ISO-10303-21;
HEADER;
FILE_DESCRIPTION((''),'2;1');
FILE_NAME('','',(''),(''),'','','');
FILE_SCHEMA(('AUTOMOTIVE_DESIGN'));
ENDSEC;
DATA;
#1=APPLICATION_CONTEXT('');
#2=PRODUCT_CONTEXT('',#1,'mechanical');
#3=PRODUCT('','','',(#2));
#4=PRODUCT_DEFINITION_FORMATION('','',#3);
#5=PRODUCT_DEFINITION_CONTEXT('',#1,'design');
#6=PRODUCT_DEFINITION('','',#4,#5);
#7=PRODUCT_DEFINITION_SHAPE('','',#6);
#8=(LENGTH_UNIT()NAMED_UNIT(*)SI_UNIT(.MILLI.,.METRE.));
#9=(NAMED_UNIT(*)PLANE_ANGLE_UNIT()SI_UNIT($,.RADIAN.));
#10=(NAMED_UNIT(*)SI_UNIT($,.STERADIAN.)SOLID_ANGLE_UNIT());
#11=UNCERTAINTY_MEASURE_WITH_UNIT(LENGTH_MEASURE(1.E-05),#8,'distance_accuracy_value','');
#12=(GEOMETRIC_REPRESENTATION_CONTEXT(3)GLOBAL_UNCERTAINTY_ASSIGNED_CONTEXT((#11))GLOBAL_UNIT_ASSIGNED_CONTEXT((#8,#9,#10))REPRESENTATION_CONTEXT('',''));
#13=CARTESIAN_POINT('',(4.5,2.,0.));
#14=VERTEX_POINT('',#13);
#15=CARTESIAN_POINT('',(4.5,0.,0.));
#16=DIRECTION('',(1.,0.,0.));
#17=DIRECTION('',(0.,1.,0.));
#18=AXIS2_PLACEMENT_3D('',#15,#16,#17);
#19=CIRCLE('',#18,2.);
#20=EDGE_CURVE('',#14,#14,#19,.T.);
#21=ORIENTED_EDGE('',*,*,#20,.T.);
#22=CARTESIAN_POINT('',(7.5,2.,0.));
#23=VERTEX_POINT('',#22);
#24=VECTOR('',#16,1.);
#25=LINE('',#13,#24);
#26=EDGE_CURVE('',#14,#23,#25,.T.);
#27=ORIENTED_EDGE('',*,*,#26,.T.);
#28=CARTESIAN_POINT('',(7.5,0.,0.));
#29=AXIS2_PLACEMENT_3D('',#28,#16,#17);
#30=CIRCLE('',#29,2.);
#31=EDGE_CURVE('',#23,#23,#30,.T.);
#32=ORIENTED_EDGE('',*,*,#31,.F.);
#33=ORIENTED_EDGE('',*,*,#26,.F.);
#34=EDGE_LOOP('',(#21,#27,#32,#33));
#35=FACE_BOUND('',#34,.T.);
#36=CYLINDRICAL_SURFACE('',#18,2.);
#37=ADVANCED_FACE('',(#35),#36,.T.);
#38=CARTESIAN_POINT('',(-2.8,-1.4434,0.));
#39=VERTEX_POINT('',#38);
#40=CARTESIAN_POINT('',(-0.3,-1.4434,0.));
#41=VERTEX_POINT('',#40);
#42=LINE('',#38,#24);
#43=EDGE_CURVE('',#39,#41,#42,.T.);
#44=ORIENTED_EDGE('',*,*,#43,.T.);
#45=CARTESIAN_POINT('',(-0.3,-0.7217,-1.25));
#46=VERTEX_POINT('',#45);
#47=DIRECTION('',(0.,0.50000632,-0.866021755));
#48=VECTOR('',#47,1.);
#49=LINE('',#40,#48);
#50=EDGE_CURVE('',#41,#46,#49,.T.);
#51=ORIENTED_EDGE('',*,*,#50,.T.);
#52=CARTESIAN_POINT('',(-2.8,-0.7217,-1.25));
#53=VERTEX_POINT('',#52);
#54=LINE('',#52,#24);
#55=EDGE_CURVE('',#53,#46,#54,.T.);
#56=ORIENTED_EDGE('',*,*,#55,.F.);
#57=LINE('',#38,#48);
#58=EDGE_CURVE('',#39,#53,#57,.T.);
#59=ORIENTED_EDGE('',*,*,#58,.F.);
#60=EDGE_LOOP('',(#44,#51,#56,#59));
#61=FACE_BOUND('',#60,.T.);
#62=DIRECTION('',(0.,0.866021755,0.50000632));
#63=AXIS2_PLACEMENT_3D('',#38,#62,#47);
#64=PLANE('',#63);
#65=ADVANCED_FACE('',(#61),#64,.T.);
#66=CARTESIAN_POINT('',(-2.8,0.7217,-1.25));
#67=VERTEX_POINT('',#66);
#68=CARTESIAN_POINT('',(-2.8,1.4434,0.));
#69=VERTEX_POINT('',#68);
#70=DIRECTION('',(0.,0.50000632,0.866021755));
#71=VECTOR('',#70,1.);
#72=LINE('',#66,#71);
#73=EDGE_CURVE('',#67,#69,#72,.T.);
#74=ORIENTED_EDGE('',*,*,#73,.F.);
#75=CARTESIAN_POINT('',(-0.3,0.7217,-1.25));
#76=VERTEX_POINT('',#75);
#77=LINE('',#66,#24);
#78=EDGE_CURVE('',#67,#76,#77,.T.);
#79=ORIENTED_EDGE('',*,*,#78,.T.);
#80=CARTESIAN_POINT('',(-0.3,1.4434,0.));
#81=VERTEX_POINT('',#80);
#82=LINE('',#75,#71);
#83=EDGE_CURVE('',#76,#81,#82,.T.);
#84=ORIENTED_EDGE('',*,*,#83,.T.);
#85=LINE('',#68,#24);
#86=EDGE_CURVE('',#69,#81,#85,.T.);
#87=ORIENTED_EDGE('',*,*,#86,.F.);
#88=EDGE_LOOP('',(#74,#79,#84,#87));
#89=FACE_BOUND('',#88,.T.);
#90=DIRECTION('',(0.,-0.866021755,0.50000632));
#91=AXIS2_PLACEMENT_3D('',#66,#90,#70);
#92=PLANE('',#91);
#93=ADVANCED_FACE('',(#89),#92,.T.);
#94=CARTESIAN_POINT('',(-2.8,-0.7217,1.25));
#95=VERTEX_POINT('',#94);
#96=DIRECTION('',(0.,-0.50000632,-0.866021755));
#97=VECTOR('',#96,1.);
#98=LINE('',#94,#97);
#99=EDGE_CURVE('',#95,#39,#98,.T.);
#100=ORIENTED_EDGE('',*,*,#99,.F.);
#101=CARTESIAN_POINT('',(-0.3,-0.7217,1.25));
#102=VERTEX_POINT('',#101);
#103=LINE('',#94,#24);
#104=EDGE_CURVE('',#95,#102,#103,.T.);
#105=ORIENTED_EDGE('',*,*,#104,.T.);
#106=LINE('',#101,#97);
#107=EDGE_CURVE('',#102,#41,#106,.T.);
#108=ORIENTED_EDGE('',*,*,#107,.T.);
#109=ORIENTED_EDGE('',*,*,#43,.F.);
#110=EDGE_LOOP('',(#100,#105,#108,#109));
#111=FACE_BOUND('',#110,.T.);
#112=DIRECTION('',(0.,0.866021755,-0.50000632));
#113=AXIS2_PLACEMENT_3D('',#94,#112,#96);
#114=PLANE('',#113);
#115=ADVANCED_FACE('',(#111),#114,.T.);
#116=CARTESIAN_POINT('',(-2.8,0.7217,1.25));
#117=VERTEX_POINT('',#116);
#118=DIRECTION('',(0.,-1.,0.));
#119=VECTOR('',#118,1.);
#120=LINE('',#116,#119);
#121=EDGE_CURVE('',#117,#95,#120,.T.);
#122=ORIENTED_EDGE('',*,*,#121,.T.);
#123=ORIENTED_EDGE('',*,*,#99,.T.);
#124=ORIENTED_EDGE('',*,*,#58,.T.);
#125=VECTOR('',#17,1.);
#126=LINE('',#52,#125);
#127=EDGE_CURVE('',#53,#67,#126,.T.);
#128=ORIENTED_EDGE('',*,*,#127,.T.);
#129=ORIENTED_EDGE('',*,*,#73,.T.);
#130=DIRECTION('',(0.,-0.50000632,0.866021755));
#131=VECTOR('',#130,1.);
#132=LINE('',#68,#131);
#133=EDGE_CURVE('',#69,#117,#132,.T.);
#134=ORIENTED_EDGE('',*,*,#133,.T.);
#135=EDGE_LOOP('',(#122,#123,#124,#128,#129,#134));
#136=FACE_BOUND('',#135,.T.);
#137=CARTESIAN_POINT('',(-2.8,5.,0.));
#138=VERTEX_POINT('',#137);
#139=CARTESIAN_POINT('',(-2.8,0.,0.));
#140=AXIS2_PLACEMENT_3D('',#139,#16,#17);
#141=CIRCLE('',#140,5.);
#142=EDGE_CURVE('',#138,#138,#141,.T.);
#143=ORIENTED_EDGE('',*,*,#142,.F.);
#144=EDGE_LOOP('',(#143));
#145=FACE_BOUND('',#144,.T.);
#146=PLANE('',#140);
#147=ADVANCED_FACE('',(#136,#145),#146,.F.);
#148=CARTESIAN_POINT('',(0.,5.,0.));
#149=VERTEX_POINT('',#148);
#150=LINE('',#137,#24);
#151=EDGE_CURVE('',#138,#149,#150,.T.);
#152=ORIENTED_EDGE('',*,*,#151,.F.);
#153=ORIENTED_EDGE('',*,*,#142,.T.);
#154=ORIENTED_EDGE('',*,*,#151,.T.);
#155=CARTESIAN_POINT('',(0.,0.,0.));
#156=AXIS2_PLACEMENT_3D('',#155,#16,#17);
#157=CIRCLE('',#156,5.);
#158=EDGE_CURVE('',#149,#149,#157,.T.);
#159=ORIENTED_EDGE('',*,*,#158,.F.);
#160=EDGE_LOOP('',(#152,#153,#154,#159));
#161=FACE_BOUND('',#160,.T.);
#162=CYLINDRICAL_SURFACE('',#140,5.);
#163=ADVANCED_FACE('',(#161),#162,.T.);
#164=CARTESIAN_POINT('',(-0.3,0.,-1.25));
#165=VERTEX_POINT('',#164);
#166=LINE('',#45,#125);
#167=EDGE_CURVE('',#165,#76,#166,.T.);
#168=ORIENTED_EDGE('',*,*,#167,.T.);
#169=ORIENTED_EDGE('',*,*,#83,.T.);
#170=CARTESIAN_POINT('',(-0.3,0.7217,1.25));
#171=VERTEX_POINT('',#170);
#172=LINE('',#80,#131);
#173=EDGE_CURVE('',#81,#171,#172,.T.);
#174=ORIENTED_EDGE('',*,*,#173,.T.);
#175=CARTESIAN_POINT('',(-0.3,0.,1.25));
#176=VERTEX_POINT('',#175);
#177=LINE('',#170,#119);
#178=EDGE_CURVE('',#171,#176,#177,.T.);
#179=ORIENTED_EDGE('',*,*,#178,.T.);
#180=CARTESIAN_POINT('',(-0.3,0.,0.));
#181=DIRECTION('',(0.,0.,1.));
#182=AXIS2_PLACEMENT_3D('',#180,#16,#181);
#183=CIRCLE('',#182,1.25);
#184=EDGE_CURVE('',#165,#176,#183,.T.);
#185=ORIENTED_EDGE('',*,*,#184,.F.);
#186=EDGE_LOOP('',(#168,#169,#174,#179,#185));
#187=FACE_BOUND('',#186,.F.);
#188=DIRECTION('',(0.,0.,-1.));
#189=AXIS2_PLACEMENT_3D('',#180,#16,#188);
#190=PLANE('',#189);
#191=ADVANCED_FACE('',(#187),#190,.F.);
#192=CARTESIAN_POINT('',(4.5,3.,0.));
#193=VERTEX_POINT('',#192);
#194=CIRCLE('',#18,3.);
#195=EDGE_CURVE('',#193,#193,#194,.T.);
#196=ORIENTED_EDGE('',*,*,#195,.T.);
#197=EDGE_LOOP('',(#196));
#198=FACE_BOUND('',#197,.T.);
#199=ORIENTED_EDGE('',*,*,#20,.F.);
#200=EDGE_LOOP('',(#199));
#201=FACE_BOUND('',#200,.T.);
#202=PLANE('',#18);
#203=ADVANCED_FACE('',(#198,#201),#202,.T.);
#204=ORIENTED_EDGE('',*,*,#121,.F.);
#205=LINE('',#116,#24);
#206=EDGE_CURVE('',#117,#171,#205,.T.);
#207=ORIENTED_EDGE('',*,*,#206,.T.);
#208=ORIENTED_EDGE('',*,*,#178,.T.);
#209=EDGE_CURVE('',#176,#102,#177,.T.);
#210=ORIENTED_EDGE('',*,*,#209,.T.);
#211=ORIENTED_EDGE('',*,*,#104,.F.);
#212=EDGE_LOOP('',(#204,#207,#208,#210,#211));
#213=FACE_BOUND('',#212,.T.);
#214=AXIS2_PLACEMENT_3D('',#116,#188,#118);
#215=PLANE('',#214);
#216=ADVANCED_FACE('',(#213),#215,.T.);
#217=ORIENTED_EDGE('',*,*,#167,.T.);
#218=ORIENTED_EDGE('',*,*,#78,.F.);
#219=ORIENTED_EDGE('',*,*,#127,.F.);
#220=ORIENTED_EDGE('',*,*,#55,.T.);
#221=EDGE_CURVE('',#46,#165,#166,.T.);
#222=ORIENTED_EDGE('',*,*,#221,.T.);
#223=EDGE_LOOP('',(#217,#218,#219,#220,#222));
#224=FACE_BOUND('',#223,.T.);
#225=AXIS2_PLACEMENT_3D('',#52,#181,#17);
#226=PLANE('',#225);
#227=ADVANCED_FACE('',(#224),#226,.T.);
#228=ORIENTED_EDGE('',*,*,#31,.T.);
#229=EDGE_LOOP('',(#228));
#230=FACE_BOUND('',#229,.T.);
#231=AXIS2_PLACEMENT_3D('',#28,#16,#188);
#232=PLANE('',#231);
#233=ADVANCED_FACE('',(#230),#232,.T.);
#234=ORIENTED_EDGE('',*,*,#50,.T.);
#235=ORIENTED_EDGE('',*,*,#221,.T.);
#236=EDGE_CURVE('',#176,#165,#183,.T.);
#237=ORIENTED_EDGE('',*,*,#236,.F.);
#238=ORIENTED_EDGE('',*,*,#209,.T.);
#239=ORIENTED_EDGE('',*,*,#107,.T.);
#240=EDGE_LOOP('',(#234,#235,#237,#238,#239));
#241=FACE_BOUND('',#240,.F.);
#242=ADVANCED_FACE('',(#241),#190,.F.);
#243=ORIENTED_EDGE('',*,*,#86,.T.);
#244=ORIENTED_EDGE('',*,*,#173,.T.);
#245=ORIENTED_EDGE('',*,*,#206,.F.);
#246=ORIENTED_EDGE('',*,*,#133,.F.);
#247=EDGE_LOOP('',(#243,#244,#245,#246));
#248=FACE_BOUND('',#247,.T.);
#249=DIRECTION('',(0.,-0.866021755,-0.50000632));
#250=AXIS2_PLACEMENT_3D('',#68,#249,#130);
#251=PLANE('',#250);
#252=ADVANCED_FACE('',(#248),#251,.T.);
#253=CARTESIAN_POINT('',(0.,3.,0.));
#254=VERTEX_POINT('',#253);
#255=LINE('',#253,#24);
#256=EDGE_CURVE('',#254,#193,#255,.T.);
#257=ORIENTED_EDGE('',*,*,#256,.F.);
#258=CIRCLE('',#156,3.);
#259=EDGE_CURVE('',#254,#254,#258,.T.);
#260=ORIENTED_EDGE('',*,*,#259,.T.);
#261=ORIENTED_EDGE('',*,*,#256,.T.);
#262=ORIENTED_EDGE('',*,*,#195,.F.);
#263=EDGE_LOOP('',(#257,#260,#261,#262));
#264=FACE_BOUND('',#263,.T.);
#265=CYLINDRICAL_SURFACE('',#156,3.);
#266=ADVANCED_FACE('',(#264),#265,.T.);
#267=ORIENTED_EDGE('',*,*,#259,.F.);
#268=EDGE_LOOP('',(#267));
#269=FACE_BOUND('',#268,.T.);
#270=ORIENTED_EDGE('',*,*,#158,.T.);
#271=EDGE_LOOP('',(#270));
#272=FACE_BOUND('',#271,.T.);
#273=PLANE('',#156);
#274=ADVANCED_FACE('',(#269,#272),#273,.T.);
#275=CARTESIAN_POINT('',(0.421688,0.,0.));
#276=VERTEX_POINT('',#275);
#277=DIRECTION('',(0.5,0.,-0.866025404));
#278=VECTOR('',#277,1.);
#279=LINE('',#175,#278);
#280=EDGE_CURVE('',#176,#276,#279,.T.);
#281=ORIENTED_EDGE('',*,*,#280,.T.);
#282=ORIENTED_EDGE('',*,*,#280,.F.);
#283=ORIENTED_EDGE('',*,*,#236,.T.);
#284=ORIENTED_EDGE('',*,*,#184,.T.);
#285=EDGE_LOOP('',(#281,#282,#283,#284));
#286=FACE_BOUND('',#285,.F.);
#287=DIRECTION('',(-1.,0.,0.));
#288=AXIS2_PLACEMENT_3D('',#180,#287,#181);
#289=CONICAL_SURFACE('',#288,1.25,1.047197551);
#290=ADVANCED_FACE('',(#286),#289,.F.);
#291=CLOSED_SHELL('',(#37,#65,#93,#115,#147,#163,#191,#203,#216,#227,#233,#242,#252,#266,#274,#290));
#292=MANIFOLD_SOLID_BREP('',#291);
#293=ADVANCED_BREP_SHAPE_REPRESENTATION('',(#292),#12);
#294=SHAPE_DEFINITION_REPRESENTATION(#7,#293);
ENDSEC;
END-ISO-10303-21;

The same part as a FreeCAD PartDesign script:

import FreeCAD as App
import Part
import Sketcher
Q = App.Units.Quantity


def add_polygon(sketch, points):
    """Adds a closed chain of lines whose ends are joined by coincident constraints."""
    first, n = sketch.GeometryCount, len(points)
    for a, b in zip(points, points[1:] + points[:1]):
        sketch.addGeometry(Part.LineSegment(App.Vector(*a, 0), App.Vector(*b, 0)), False)
    for i in range(n):
        sketch.addConstraint(Sketcher.Constraint("Coincident", first + i, 2, first + (i + 1) % n, 1))

doc = App.newDocument("Part")
params = doc.addObject("Spreadsheet::Sheet", "Params")
for row, (alias, value) in enumerate([
    ("sketch1_height", "3 mm"),
    ("sketch1_height2", "2 mm"),
    ("sketch1_width", "7.3 mm"),
    ("sketch1_width2", "4.5 mm"),
    ("revolution_angle", "360 deg"),
    ("sketch2_diameter", "2.5 mm"),
    ("hole_diameter", "2.5 mm"),
    ("hole_depth", "2.5 mm"),
    ("pocket1_length", "2.5 mm"),
    ("sketch4_width", "5 mm"),
    ("sketch4_height", "2 mm"),
    ("revolution2_angle", "360 deg"),
    ("sketch5_diameter", "10 mm"),
    ("pocket2_length", "2 mm"),
], start=1):
    params.set(f"A{row}", alias)
    params.set(f"B{row}", "=" + value)
    params.setAlias(f"B{row}", alias)

body = doc.addObject("PartDesign::Body", "Body")

sketch1 = body.newObject("Sketcher::SketchObject", "Sketch")
sketch1.AttachmentSupport = (doc.getObject("XY_Plane"), [""])
sketch1.MapMode = "FlatFace"
add_polygon(sketch1, [(-2.8, 0), (4.5, 0), (4.5, 3), (0, 3), (0, 5), (-2.8, 5)])
sketch1.addConstraint([
    Sketcher.Constraint("Horizontal", 0),
    Sketcher.Constraint("Vertical", 1),
    Sketcher.Constraint("Horizontal", 2),
    Sketcher.Constraint("Vertical", 3),
    Sketcher.Constraint("Horizontal", 4),
    Sketcher.Constraint("Vertical", 5),
    Sketcher.Constraint("PointOnObject", 0, 2, -1),
    Sketcher.Constraint("PointOnObject", 2, 2, -2),
    Sketcher.Constraint("DistanceY", 1, 1, 1, 2, Q("3 mm")),
    Sketcher.Constraint("DistanceY", 3, 1, 3, 2, Q("2 mm")),
    Sketcher.Constraint("DistanceX", 0, 1, 0, 2, Q("7.3 mm")),
    Sketcher.Constraint("DistanceX", 2, 2, 2, 1, Q("4.5 mm")),
])
sketch1.setExpression("Constraints[14]", "Params.sketch1_height")
sketch1.setExpression("Constraints[15]", "Params.sketch1_height2")
sketch1.setExpression("Constraints[16]", "Params.sketch1_width")
sketch1.setExpression("Constraints[17]", "Params.sketch1_width2")
revolution = body.newObject("PartDesign::Revolution", "Revolution")
revolution.Profile = sketch1
revolution.ReferenceAxis = (sketch1, ["H_Axis"])
revolution.setExpression("Angle", "Params.revolution_angle")

sketch2 = body.newObject("Sketcher::SketchObject", "Sketch001")
sketch2.AttachmentSupport = (doc.getObject("YZ_Plane"), [""])
sketch2.MapMode = "FlatFace"
sketch2.AttachmentOffset = App.Placement(App.Vector(0, 0, -2.8), App.Rotation())
sketch2.addGeometry(Part.Circle(App.Vector(0, 0, 0), App.Vector(0, 0, 1), 1.2), False)
sketch2.addConstraint([
    Sketcher.Constraint("Coincident", 0, 3, -1, 1),
    Sketcher.Constraint("Diameter", 0, Q("2.5 mm")),
])
sketch2.setExpression("Constraints[1]", "Params.sketch2_diameter")
doc.recompute()
hole = body.newObject("PartDesign::Hole", "Hole")
hole.Profile = sketch2
hole.ThreadType = "None"
hole.setExpression("Diameter", "Params.hole_diameter")
hole.DepthType = "Dimension"
hole.setExpression("Depth", "Params.hole_depth")
hole.DrillPoint = "Angled"
hole.DrillPointAngle = 120
hole.Reversed = True

sketch3 = body.newObject("Sketcher::SketchObject", "Sketch002")
sketch3.AttachmentSupport = (doc.getObject("YZ_Plane"), [""])
sketch3.MapMode = "FlatFace"
sketch3.AttachmentOffset = App.Placement(App.Vector(0, 0, -2.8), App.Rotation())
add_polygon(sketch3, [(0.7, 1.2), (-0.7, 1.2), (-1.4, 0), (-0.7, -1.2), (0.7, -1.2), (1.4, 0)])
sketch3.addConstraint([
    Sketcher.Constraint("Horizontal", 0),
    Sketcher.Constraint("Horizontal", 3),
    Sketcher.Constraint("Symmetric", 0, 2, 3, 2, -1, 1),
    Sketcher.Constraint("Symmetric", 1, 2, 4, 2, -1, 1),
    Sketcher.Constraint("PointOnObject", 1, 2, -1),
    Sketcher.Constraint("Parallel", 2, 5),
    Sketcher.Constraint("Vertical", 0, 2, 2, 2),
    Sketcher.Constraint("Angle", 1, Q("-120.0004 deg")),
    Sketcher.Constraint("DistanceY", 2, 2, 0, 2, Q("2.5 mm")),
    Sketcher.Constraint("DistanceX", 0, 2, 0, 1, Q("1.4434 mm")),
])
pocket1 = body.newObject("PartDesign::Pocket", "Pocket")
pocket1.Profile = sketch3
pocket1.setExpression("Length", "Params.pocket1_length")
pocket1.Reversed = True

sketch4 = body.newObject("Sketcher::SketchObject", "Sketch003")
sketch4.AttachmentSupport = (doc.getObject("XY_Plane"), [""])
sketch4.MapMode = "FlatFace"
add_polygon(sketch4, [(4.5, 0), (9.5, 0), (9.5, 1.6), (9.1, 2), (4.5, 2)])
sketch4.addConstraint([
    Sketcher.Constraint("Horizontal", 0),
    Sketcher.Constraint("Vertical", 1),
    Sketcher.Constraint("Horizontal", 3),
    Sketcher.Constraint("Vertical", 4),
    Sketcher.Constraint("PointOnObject", 0, 2, -1),
    Sketcher.Constraint("DistanceX", 0, 1, 0, 2, Q("5 mm")),
    Sketcher.Constraint("DistanceY", 4, 2, 4, 1, Q("2 mm")),
    Sketcher.Constraint("Angle", 2, Q("135 deg")),
    Sketcher.Constraint("DistanceX", -1, 1, 0, 2, Q("9.5 mm")),
    Sketcher.Constraint("DistanceX", 3, 2, 3, 1, Q("4.5705 mm")),
])
sketch4.setExpression("Constraints[10]", "Params.sketch4_width")
sketch4.setExpression("Constraints[11]", "Params.sketch4_height")
revolution2 = body.newObject("PartDesign::Revolution", "Revolution001")
revolution2.Profile = sketch4
revolution2.ReferenceAxis = (sketch4, ["H_Axis"])
revolution2.setExpression("Angle", "Params.revolution2_angle")

sketch5 = body.newObject("Sketcher::SketchObject", "Sketch004")
sketch5.AttachmentSupport = (doc.getObject("YZ_Plane"), [""])
sketch5.MapMode = "FlatFace"
sketch5.AttachmentOffset = App.Placement(App.Vector(0, 0, 9.5), App.Rotation())
sketch5.addGeometry(Part.Circle(App.Vector(0, 0, 0), App.Vector(0, 0, 1), 5), False)
sketch5.addConstraint([
    Sketcher.Constraint("Coincident", 0, 3, -1, 1),
    Sketcher.Constraint("Diameter", 0, Q("10 mm")),
])
sketch5.setExpression("Constraints[1]", "Params.sketch5_diameter")
pocket2 = body.newObject("PartDesign::Pocket", "Pocket001")
pocket2.Profile = sketch5
pocket2.setExpression("Length", "Params.pocket2_length")

doc.recompute()
